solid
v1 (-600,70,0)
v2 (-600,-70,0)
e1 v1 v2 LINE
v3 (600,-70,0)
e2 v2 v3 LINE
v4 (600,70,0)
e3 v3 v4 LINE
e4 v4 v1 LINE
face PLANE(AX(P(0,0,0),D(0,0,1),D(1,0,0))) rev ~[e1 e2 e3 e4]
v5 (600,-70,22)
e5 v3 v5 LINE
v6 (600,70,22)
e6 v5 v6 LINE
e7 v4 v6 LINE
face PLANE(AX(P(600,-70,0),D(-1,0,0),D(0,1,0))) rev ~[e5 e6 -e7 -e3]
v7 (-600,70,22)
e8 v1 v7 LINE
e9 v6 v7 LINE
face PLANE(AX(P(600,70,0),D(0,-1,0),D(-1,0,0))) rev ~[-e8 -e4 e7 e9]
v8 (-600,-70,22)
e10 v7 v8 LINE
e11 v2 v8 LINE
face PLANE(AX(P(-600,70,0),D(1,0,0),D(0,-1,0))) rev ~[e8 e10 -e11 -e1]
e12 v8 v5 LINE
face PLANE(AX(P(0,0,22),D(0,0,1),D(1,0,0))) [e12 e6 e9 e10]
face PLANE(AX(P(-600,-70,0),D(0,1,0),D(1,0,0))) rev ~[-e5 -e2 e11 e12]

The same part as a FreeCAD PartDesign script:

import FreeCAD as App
import Part
import Sketcher

V = App.Vector

doc = App.newDocument("Part")
body = doc.addObject("PartDesign::Body", "Body")

# Sketch on XY plane
sketch1 = body.newObject("Sketcher::SketchObject", "Sketch")
sketch1.AttachmentSupport = (doc.getObject("XY_Plane"), [""])
sketch1.MapMode = "FlatFace"
sketch1.addGeometry(Part.LineSegment(V(-600, 70, 0), V(-600, -70, 0)), False)
sketch1.addGeometry(Part.LineSegment(V(-600, -70, 0), V(600, -70, 0)), False)
sketch1.addGeometry(Part.LineSegment(V(600, -70, 0), V(600, 70, 0)), False)
sketch1.addGeometry(Part.LineSegment(V(600, 70, 0), V(-600, 70, 0)), False)
sketch1.addConstraint(Sketcher.Constraint("Coincident", 0, 2, 1, 1))
sketch1.addConstraint(Sketcher.Constraint("Coincident", 1, 2, 2, 1))
sketch1.addConstraint(Sketcher.Constraint("Coincident", 2, 2, 3, 1))
sketch1.addConstraint(Sketcher.Constraint("Coincident", 3, 2, 0, 1))
sketch1.addConstraint(Sketcher.Constraint("Vertical", 0))
sketch1.addConstraint(Sketcher.Constraint("Horizontal", 1))
sketch1.addConstraint(Sketcher.Constraint("Vertical", 2))
sketch1.addConstraint(Sketcher.Constraint("Horizontal", 3))
sketch1.addConstraint(Sketcher.Constraint("Symmetric", 0, 2, 2, 2, -1, 1))
sketch1.addConstraint(Sketcher.Constraint("DistanceX", 0, 2, -1, 1, 600.0))
sketch1.addConstraint(Sketcher.Constraint("DistanceY", 0, 2, 0, 1, 140.0))
pad1 = body.newObject("PartDesign::Pad", "Pad")
pad1.Profile = sketch1
pad1.Length = 22

doc.recompute()
